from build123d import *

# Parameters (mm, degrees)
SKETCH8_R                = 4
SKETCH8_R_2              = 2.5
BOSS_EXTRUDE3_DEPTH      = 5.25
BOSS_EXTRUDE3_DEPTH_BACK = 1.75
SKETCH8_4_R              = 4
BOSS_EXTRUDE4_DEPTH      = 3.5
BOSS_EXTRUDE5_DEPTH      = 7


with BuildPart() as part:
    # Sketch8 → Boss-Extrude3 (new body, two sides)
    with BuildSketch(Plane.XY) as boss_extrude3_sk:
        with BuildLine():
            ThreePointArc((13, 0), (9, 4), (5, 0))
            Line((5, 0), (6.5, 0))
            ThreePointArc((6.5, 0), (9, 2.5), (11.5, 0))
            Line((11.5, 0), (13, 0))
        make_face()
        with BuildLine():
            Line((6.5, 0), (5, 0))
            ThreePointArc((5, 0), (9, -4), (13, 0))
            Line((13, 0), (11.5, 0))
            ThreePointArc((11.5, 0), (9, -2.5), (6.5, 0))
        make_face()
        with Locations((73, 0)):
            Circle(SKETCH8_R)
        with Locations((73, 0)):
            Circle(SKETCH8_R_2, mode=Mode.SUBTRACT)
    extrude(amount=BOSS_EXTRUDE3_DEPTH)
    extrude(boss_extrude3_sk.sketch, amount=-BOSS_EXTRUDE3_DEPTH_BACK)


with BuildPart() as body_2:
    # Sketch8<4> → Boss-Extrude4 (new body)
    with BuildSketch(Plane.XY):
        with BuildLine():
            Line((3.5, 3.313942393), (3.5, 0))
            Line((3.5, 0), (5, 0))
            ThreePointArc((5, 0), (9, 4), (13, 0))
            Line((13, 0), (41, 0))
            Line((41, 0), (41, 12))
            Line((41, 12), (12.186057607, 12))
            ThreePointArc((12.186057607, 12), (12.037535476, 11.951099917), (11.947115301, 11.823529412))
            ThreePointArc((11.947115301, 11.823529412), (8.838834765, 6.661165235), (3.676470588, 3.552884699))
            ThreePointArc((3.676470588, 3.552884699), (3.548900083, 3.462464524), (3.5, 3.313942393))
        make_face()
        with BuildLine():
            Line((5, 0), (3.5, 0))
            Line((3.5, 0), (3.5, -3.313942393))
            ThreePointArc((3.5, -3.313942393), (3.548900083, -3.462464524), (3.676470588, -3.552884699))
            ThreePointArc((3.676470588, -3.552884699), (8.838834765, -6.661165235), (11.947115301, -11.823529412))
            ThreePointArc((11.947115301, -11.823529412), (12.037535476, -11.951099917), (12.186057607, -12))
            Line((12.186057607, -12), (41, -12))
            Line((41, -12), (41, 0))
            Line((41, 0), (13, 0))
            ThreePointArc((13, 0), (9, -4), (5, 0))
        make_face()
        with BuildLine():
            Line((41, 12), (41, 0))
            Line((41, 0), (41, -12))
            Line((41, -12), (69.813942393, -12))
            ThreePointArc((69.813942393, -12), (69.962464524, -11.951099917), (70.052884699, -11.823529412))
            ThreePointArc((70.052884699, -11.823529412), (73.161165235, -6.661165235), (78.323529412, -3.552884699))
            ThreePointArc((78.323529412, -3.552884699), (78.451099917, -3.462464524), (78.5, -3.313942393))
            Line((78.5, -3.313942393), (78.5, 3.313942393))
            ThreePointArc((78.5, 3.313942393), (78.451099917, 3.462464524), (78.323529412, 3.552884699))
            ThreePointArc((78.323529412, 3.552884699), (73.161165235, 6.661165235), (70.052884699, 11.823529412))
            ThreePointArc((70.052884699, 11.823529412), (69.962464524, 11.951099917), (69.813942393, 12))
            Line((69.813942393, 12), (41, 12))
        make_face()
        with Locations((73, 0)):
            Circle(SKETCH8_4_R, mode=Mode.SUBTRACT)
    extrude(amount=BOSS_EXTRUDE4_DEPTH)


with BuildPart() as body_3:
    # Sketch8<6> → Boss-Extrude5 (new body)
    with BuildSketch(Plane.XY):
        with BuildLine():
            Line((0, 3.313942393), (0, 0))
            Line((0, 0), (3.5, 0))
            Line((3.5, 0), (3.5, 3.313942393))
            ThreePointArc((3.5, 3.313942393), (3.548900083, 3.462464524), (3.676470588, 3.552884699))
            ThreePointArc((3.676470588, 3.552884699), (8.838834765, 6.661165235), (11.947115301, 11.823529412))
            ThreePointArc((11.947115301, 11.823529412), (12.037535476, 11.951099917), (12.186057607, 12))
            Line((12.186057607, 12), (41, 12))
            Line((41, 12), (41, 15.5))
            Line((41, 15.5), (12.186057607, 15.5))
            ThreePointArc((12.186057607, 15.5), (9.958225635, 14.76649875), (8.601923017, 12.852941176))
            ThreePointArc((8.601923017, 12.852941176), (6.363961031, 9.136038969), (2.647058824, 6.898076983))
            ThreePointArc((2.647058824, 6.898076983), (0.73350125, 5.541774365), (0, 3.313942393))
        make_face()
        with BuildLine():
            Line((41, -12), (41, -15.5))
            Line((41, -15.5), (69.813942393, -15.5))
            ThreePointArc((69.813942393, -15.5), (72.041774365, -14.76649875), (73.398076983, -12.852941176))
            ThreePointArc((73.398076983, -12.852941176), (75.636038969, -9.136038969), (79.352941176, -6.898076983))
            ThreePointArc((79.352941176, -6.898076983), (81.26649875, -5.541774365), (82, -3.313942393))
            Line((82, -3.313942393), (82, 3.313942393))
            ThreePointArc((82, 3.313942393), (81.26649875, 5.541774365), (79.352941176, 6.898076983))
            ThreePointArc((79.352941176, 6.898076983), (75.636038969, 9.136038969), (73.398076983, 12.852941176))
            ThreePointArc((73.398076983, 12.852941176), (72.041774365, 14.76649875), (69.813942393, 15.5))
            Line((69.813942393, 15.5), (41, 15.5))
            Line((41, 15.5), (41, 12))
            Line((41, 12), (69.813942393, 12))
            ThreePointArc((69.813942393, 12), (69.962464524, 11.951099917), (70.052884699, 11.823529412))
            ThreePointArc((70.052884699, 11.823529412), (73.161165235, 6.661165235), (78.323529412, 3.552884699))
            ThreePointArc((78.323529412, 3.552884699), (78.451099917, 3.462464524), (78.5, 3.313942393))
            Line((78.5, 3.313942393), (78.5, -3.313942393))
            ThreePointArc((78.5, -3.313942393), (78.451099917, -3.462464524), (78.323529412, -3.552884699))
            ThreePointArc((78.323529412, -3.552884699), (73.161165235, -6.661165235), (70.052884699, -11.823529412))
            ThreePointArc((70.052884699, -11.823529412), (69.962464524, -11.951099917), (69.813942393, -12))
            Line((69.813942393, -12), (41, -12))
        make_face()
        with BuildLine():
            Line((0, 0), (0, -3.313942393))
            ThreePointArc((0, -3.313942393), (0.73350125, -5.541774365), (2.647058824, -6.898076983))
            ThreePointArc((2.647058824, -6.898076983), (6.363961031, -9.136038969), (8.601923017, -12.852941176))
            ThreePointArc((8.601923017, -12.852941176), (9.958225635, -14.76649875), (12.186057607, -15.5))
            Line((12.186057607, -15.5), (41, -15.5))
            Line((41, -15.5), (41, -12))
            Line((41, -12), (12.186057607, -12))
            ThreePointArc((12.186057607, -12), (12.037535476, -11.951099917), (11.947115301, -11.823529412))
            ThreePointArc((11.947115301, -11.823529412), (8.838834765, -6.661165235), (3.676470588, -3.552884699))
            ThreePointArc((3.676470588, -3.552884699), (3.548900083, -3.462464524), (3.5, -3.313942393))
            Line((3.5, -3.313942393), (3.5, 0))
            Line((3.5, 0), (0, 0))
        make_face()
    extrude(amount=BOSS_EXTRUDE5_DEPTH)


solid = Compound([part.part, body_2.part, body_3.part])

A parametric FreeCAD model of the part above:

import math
import FreeCAD as App
import Part
import Sketcher
from FreeCAD import Vector
Q = App.Units.Quantity

doc = App.newDocument("Part")
body = doc.addObject("PartDesign::Body", "Body")
body.AllowCompound = True

# Sketch on XY plane
sketch1 = body.newObject("Sketcher::SketchObject", "Sketch")
sketch1.AttachmentSupport = (doc.getObject("XY_Plane"), [""])
sketch1.MapMode = "FlatFace"
sketch1.addGeometry([
    Part.Circle(Vector(9, 0, 0), Vector(0, 0, 1), 4),
    Part.Circle(Vector(9, 0, 0), Vector(0, 0, 1), 2.5),
    Part.Circle(Vector(73, 0, 0), Vector(0, 0, 1), 4),
    Part.Circle(Vector(73, 0, 0), Vector(0, 0, 1), 2.5),
], False)
sketch1.addConstraint([
    Sketcher.Constraint("Coincident", 1, 3, 0, 3),
    Sketcher.Constraint("Coincident", 3, 3, 2, 3),
    Sketcher.Constraint("Equal", 0, 2),
    Sketcher.Constraint("Equal", 1, 3),
    Sketcher.Constraint("PointOnObject", 0, 3, -1),
    Sketcher.Constraint("PointOnObject", 2, 3, -1),
    Sketcher.Constraint("Diameter", 0, Q("8 mm")),
    Sketcher.Constraint("Diameter", 1, Q("5 mm")),
    Sketcher.Constraint("DistanceX", -1, 1, 0, 3, Q("9 mm")),
    Sketcher.Constraint("DistanceX", -1, 1, 2, 3, Q("73 mm")),
])
pad1 = body.newObject("PartDesign::Pad", "Pad")
pad1.Profile = sketch1
pad1.Type = "TwoLengths"
pad1.Length = 5.25
pad1.Length2 = 1.75
body2 = doc.addObject("PartDesign::Body", "Body001")

# Sketch on XY plane
sketch2 = body2.newObject("Sketcher::SketchObject", "Sketch001")
sketch2.AttachmentSupport = (doc.getObject("XY_Plane001"), [""])
sketch2.MapMode = "FlatFace"
sketch2.addGeometry([
    Part.LineSegment(Vector(3.5, 3.313942, 0), Vector(3.5, -3.313942, 0)),  # 0
    Part.ArcOfCircle(Part.Circle(Vector(3.75, -3.313942, 0), Vector(0, 0, 1), 0.25), math.radians(180), math.radians(252.895365)),  # 1
    Part.ArcOfCircle(Part.Circle(Vector(0, -15.5, 0), Vector(0, 0, 1), 12.5), math.radians(17.104635), math.radians(72.895365)),  # 2
    Part.ArcOfCircle(Part.Circle(Vector(12.186058, -11.75, 0), Vector(0, 0, 1), 0.25), math.radians(-162.895365), math.radians(-90)),  # 3
    Part.LineSegment(Vector(12.186058, -12, 0), Vector(69.813942, -12, 0)),  # 4
    Part.ArcOfCircle(Part.Circle(Vector(69.813942, -11.75, 0), Vector(0, 0, 1), 0.25), math.radians(-90), math.radians(-17.104635)),  # 5
    Part.ArcOfCircle(Part.Circle(Vector(82, -15.5, 0), Vector(0, 0, 1), 12.5), math.radians(107.104635), math.radians(162.895365)),  # 6
    Part.ArcOfCircle(Part.Circle(Vector(78.25, -3.313942, 0), Vector(0, 0, 1), 0.25), math.radians(-72.895365), math.radians(0)),  # 7
    Part.LineSegment(Vector(78.5, -3.313942, 0), Vector(78.5, 3.313942, 0)),  # 8
    Part.ArcOfCircle(Part.Circle(Vector(78.25, 3.313942, 0), Vector(0, 0, 1), 0.25), math.radians(0), math.radians(72.895365)),  # 9
    Part.ArcOfCircle(Part.Circle(Vector(82, 15.5, 0), Vector(0, 0, 1), 12.5), math.radians(-162.895365), math.radians(-107.104635)),  # 10
    Part.ArcOfCircle(Part.Circle(Vector(69.813942, 11.75, 0), Vector(0, 0, 1), 0.25), math.radians(17.104635), math.radians(90)),  # 11
    Part.LineSegment(Vector(69.813942, 12, 0), Vector(12.186058, 12, 0)),  # 12
    Part.ArcOfCircle(Part.Circle(Vector(12.186058, 11.75, 0), Vector(0, 0, 1), 0.25), math.radians(90), math.radians(162.895365)),  # 13
    Part.ArcOfCircle(Part.Circle(Vector(0, 15.5, 0), Vector(0, 0, 1), 12.5), math.radians(-72.895365), math.radians(-17.104635)),  # 14
    Part.ArcOfCircle(Part.Circle(Vector(3.75, 3.313942, 0), Vector(0, 0, 1), 0.25), math.radians(107.104635), math.radians(180)),  # 15
    Part.Circle(Vector(9, 0, 0), Vector(0, 0, 1), 4),  # 16
    Part.Circle(Vector(73, 0, 0), Vector(0, 0, 1), 4),  # 17
], False)
sketch2.addConstraint([
    Sketcher.Constraint("Tangent", 0, 2, 1, 1),
    Sketcher.Constraint("Tangent", 1, 2, 2, 2),
    Sketcher.Constraint("Tangent", 2, 1, 3, 1),
    Sketcher.Constraint("Tangent", 3, 2, 4, 1),
    Sketcher.Constraint("Tangent", 4, 2, 5, 1),
    Sketcher.Constraint("Tangent", 5, 2, 6, 2),
    Sketcher.Constraint("Tangent", 6, 1, 7, 1),
    Sketcher.Constraint("Tangent", 7, 2, 8, 1),
    Sketcher.Constraint("Tangent", 8, 2, 9, 1),
    Sketcher.Constraint("Tangent", 9, 2, 10, 2),
    Sketcher.Constraint("Tangent", 10, 1, 11, 1),
    Sketcher.Constraint("Tangent", 11, 2, 12, 1),
    Sketcher.Constraint("Tangent", 12, 2, 13, 1),
    Sketcher.Constraint("Tangent", 13, 2, 14, 2),
    Sketcher.Constraint("Tangent", 14, 1, 15, 1),
    Sketcher.Constraint("Tangent", 15, 2, 0, 1),
    Sketcher.Constraint("Vertical", 0),
    Sketcher.Constraint("Horizontal", 4),
    Sketcher.Constraint("Vertical", 8),
    Sketcher.Constraint("Horizontal", 12),
    Sketcher.Constraint("Equal", 1, 3),
    Sketcher.Constraint("Equal", 3, 5),
    Sketcher.Constraint("Equal", 2, 6),
    Sketcher.Constraint("Equal", 5, 7),
    Sketcher.Constraint("Equal", 7, 9),
    Sketcher.Constraint("Equal", 6, 10),
    Sketcher.Constraint("Equal", 9, 11),
    Sketcher.Constraint("Equal", 11, 13),
    Sketcher.Constraint("Equal", 10, 14),
    Sketcher.Constraint("Equal", 13, 15),
    Sketcher.Constraint("Equal", 16, 17),
    Sketcher.Constraint("Symmetric", 2, 3, 14, 3, -1, 1),
    Sketcher.Constraint("Symmetric", 6, 3, 10, 3, -1),
    Sketcher.Constraint("Symmetric", 3, 3, 13, 3, -1),
    Sketcher.Constraint("PointOnObject", 16, 3, -1),
    Sketcher.Constraint("PointOnObject", 17, 3, -1),
    Sketcher.Constraint("Horizontal", 2, 3, 6, 3),
    Sketcher.Constraint("Horizontal", 1, 3, 7, 3),
    Sketcher.Constraint("Diameter", 16, Q("8 mm")),
    Sketcher.Constraint("Radius", 2, Q("12.5 mm")),
    Sketcher.Constraint("Radius", 1, Q("0.25 mm")),
    Sketcher.Constraint("DistanceX", -1, 1, 6, 3, Q("82 mm")),
    Sketcher.Constraint("DistanceX", -1, 1, 16, 3, Q("9 mm")),
    Sketcher.Constraint("DistanceX", -1, 1, 17, 3, Q("73 mm")),
    Sketcher.Constraint("DistanceY", 3, 2, -1, 1, Q("12 mm")),
    Sketcher.Constraint("DistanceY", 6, 3, 10, 3, Q("31 mm")),
    Sketcher.Constraint("DistanceX", -1, 1, 0, 2, Q("3.5 mm")),
])
pad2 = body2.newObject("PartDesign::Pad", "Pad001")
pad2.Profile = sketch2
pad2.Length = 3.5
body3 = doc.addObject("PartDesign::Body", "Body002")

# Sketch on XY plane
sketch3 = body3.newObject("Sketcher::SketchObject", "Sketch002")
sketch3.AttachmentSupport = (doc.getObject("XY_Plane002"), [""])
sketch3.MapMode = "FlatFace"
sketch3.addGeometry([
    Part.LineSegment(Vector(0, 3.313942, 0), Vector(0, -3.313942, 0)),  # 0
    Part.ArcOfCircle(Part.Circle(Vector(3.75, -3.313942, 0), Vector(0, 0, 1), 3.75), math.radians(180), math.radians(252.895365)),  # 1
    Part.ArcOfCircle(Part.Circle(Vector(0, -15.5, 0), Vector(0, 0, 1), 9), math.radians(17.104635), math.radians(72.895365)),  # 2
    Part.ArcOfCircle(Part.Circle(Vector(12.186058, -11.75, 0), Vector(0, 0, 1), 3.75), math.radians(-162.895365), math.radians(-90)),  # 3
    Part.LineSegment(Vector(12.186058, -15.5, 0), Vector(69.813942, -15.5, 0)),  # 4
    Part.ArcOfCircle(Part.Circle(Vector(69.813942, -11.75, 0), Vector(0, 0, 1), 3.75), math.radians(-90), math.radians(-17.104635)),  # 5
    Part.ArcOfCircle(Part.Circle(Vector(82, -15.5, 0), Vector(0, 0, 1), 9), math.radians(107.104635), math.radians(162.895365)),  # 6
    Part.ArcOfCircle(Part.Circle(Vector(78.25, -3.313942, 0), Vector(0, 0, 1), 3.75), math.radians(-72.895365), math.radians(0)),  # 7
    Part.LineSegment(Vector(82, -3.313942, 0), Vector(82, 3.313942, 0)),  # 8
    Part.ArcOfCircle(Part.Circle(Vector(78.25, 3.313942, 0), Vector(0, 0, 1), 3.75), math.radians(0), math.radians(72.895365)),  # 9
    Part.ArcOfCircle(Part.Circle(Vector(82, 15.5, 0), Vector(0, 0, 1), 9), math.radians(-162.895365), math.radians(-107.104635)),  # 10
    Part.ArcOfCircle(Part.Circle(Vector(69.813942, 11.75, 0), Vector(0, 0, 1), 3.75), math.radians(17.104635), math.radians(90)),  # 11
    Part.LineSegment(Vector(69.813942, 15.5, 0), Vector(12.186058, 15.5, 0)),  # 12
    Part.ArcOfCircle(Part.Circle(Vector(12.186058, 11.75, 0), Vector(0, 0, 1), 3.75), math.radians(90), math.radians(162.895365)),  # 13
    Part.ArcOfCircle(Part.Circle(Vector(0, 15.5, 0), Vector(0, 0, 1), 9), math.radians(-72.895365), math.radians(-17.104635)),  # 14
    Part.ArcOfCircle(Part.Circle(Vector(3.75, 3.313942, 0), Vector(0, 0, 1), 3.75), math.radians(107.104635), math.radians(180)),  # 15
    Part.ArcOfCircle(Part.Circle(Vector(3.75, 3.313942, 0), Vector(0, 0, 1), 0.25), math.radians(107.104635), math.radians(180)),  # 16
    Part.ArcOfCircle(Part.Circle(Vector(0, 15.5, 0), Vector(0, 0, 1), 12.5), math.radians(-72.895365), math.radians(-17.104635)),  # 17
    Part.ArcOfCircle(Part.Circle(Vector(12.186058, 11.75, 0), Vector(0, 0, 1), 0.25), math.radians(90), math.radians(162.895365)),  # 18
    Part.LineSegment(Vector(12.186058, 12, 0), Vector(69.813942, 12, 0)),  # 19
    Part.ArcOfCircle(Part.Circle(Vector(69.813942, 11.75, 0), Vector(0, 0, 1), 0.25), math.radians(17.104635), math.radians(90)),  # 20
    Part.ArcOfCircle(Part.Circle(Vector(82, 15.5, 0), Vector(0, 0, 1), 12.5), math.radians(-162.895365), math.radians(-107.104635)),  # 21
    Part.ArcOfCircle(Part.Circle(Vector(78.25, 3.313942, 0), Vector(0, 0, 1), 0.25), math.radians(0), math.radians(72.895365)),  # 22
    Part.LineSegment(Vector(78.5, 3.313942, 0), Vector(78.5, -3.313942, 0)),  # 23
    Part.ArcOfCircle(Part.Circle(Vector(78.25, -3.313942, 0), Vector(0, 0, 1), 0.25), math.radians(-72.895365), math.radians(0)),  # 24
    Part.ArcOfCircle(Part.Circle(Vector(82, -15.5, 0), Vector(0, 0, 1), 12.5), math.radians(107.104635), math.radians(162.895365)),  # 25
    Part.ArcOfCircle(Part.Circle(Vector(69.813942, -11.75, 0), Vector(0, 0, 1), 0.25), math.radians(-90), math.radians(-17.104635)),  # 26
    Part.LineSegment(Vector(69.813942, -12, 0), Vector(12.186058, -12, 0)),  # 27
    Part.ArcOfCircle(Part.Circle(Vector(12.186058, -11.75, 0), Vector(0, 0, 1), 0.25), math.radians(-162.895365), math.radians(-90)),  # 28
    Part.ArcOfCircle(Part.Circle(Vector(0, -15.5, 0), Vector(0, 0, 1), 12.5), math.radians(17.104635), math.radians(72.895365)),  # 29
    Part.ArcOfCircle(Part.Circle(Vector(3.75, -3.313942, 0), Vector(0, 0, 1), 0.25), math.radians(180), math.radians(252.895365)),  # 30
    Part.LineSegment(Vector(3.5, -3.313942, 0), Vector(3.5, 3.313942, 0)),  # 31
], False)
sketch3.addConstraint([
    Sketcher.Constraint("Tangent", 0, 2, 1, 1),
    Sketcher.Constraint("Tangent", 1, 2, 2, 2),
    Sketcher.Constraint("Tangent", 2, 1, 3, 1),
    Sketcher.Constraint("Tangent", 3, 2, 4, 1),
    Sketcher.Constraint("Tangent", 4, 2, 5, 1),
    Sketcher.Constraint("Tangent", 5, 2, 6, 2),
    Sketcher.Constraint("Tangent", 6, 1, 7, 1),
    Sketcher.Constraint("Tangent", 7, 2, 8, 1),
    Sketcher.Constraint("Tangent", 8, 2, 9, 1),
    Sketcher.Constraint("Tangent", 9, 2, 10, 2),
    Sketcher.Constraint("Tangent", 10, 1, 11, 1),
    Sketcher.Constraint("Tangent", 11, 2, 12, 1),
    Sketcher.Constraint("Tangent", 12, 2, 13, 1),
    Sketcher.Constraint("Tangent", 13, 2, 14, 2),
    Sketcher.Constraint("Tangent", 14, 1, 15, 1),
    Sketcher.Constraint("Tangent", 15, 2, 0, 1),
    Sketcher.Constraint("Tangent", 16, 1, 17, 1),
    Sketcher.Constraint("Tangent", 17, 2, 18, 2),
    Sketcher.Constraint("Tangent", 18, 1, 19, 1),
    Sketcher.Constraint("Tangent", 19, 2, 20, 2),
    Sketcher.Constraint("Tangent", 20, 1, 21, 1),
    Sketcher.Constraint("Tangent", 21, 2, 22, 2),
    Sketcher.Constraint("Tangent", 22, 1, 23, 1),
    Sketcher.Constraint("Tangent", 23, 2, 24, 2),
    Sketcher.Constraint("Tangent", 24, 1, 25, 1),
    Sketcher.Constraint("Tangent", 25, 2, 26, 2),
    Sketcher.Constraint("Tangent", 26, 1, 27, 1),
    Sketcher.Constraint("Tangent", 27, 2, 28, 2),
    Sketcher.Constraint("Tangent", 28, 1, 29, 1),
    Sketcher.Constraint("Tangent", 29, 2, 30, 2),
    Sketcher.Constraint("Tangent", 30, 1, 31, 1),
    Sketcher.Constraint("Tangent", 31, 2, 16, 2),
    Sketcher.Constraint("Vertical", 0),
    Sketcher.Constraint("Horizontal", 4),
    Sketcher.Constraint("Vertical", 8),
    Sketcher.Constraint("Horizontal", 12),
    Sketcher.Constraint("Horizontal", 19),
    Sketcher.Constraint("Vertical", 23),
    Sketcher.Constraint("Horizontal", 27),
    Sketcher.Constraint("Vertical", 31),
    Sketcher.Constraint("Coincident", 16, 3, 15, 3),
    Sketcher.Constraint("Coincident", 17, 3, 14, 3),
    Sketcher.Constraint("Coincident", 18, 3, 13, 3),
    Sketcher.Constraint("Coincident", 20, 3, 11, 3),
    Sketcher.Constraint("Coincident", 21, 3, 10, 3),
    Sketcher.Constraint("Coincident", 22, 3, 9, 3),
    Sketcher.Constraint("Coincident", 24, 3, 7, 3),
    Sketcher.Constraint("Coincident", 25, 3, 6, 3),
    Sketcher.Constraint("Coincident", 26, 3, 5, 3),
    Sketcher.Constraint("Coincident", 28, 3, 3, 3),
    Sketcher.Constraint("Coincident", 29, 3, 2, 3),
    Sketcher.Constraint("Equal", 1, 3),
    Sketcher.Constraint("Equal", 3, 5),
    Sketcher.Constraint("Equal", 2, 6),
    Sketcher.Constraint("Equal", 5, 7),
    Sketcher.Constraint("Equal", 7, 9),
    Sketcher.Constraint("Equal", 6, 10),
    Sketcher.Constraint("Equal", 9, 11),
    Sketcher.Constraint("Equal", 11, 13),
    Sketcher.Constraint("Equal", 10, 14),
    Sketcher.Constraint("Equal", 13, 15),
    Sketcher.Constraint("Equal", 28, 30),
    Sketcher.Constraint("Symmetric", 2, 3, 14, 3, -1, 1),
    Sketcher.Constraint("Symmetric", 0, 2, 15, 2, -1, 1),
    Sketcher.Constraint("Symmetric", 6, 3, 10, 3, -1),
    Sketcher.Constraint("Horizontal", 2, 3, 6, 3),
    Sketcher.Constraint("Horizontal", 1, 3, 7, 3),
    Sketcher.Constraint("Horizontal", 29, 3, 3, 2),
    Sketcher.Constraint("Horizontal", 21, 3, 11, 2),
    Sketcher.Constraint("Radius", 2, Q("9 mm")),
    Sketcher.Constraint("Radius", 17, Q("12.5 mm")),
    Sketcher.Constraint("Radius", 1, Q("3.75 mm")),
    Sketcher.Constraint("DistanceX", -1, 1, 6, 3, Q("82 mm")),
    Sketcher.Constraint("DistanceY", -1, 1, 18, 1, Q("12 mm")),
])
pad3 = body3.newObject("PartDesign::Pad", "Pad002")
pad3.Profile = sketch3
pad3.Length = 7

doc.recompute()
